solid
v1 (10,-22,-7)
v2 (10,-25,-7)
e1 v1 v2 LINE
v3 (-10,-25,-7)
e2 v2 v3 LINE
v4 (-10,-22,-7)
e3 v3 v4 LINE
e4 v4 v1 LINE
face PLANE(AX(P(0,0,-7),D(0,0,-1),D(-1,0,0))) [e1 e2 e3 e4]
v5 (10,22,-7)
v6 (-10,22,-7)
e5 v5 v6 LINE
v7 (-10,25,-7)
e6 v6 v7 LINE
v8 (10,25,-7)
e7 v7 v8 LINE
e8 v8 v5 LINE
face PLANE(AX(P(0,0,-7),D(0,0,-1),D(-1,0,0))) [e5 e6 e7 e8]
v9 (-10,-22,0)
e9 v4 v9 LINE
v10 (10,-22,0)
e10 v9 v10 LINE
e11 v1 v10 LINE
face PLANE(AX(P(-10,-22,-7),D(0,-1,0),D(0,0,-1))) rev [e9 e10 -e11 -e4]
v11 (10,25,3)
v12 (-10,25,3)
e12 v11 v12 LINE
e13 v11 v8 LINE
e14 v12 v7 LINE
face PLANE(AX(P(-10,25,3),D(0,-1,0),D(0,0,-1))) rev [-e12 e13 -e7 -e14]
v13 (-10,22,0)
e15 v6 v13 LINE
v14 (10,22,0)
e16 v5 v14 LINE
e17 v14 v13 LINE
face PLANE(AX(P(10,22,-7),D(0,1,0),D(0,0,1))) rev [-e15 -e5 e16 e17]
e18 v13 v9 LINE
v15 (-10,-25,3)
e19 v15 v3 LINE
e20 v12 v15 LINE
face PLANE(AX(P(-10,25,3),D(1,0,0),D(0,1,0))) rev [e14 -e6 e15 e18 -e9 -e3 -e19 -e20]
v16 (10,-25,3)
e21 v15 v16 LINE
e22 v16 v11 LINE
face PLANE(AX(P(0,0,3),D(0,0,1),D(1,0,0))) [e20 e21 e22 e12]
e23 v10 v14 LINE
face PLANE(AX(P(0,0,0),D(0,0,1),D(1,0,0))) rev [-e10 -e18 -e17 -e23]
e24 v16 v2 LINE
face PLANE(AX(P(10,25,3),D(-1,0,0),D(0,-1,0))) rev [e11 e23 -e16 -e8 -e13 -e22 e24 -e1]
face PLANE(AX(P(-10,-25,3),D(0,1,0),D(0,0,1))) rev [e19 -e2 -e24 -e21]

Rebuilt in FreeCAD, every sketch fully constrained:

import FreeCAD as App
import Part
import Sketcher
from FreeCAD import Vector
Q = App.Units.Quantity


def add_polygon(sketch, points):
    """Adds a closed chain of lines whose ends are joined by coincident constraints."""
    first, n = sketch.GeometryCount, len(points)
    for a, b in zip(points, points[1:] + points[:1]):
        sketch.addGeometry(Part.LineSegment(App.Vector(*a, 0), App.Vector(*b, 0)), False)
    for i in range(n):
        sketch.addConstraint(Sketcher.Constraint("Coincident", first + i, 2, first + (i + 1) % n, 1))

doc = App.newDocument("Part")
body = doc.addObject("PartDesign::Body", "Body")

sketch1 = doc.addObject("Sketcher::SketchObject", "Sketch")
body.addObject(sketch1)
sketch1.AttachmentSupport = (doc.XY_Plane, [""])
sketch1.MapMode = "FlatFace"
add_polygon(sketch1, [(-10, 25), (-10, -25), (10, -25), (10, 25)])
sketch1.addConstraint([
    Sketcher.Constraint("Vertical", 0),
    Sketcher.Constraint("Horizontal", 1),
    Sketcher.Constraint("Vertical", 2),
    Sketcher.Constraint("Horizontal", 3),
    Sketcher.Constraint("Symmetric", 0, 2, 2, 2, -1, 1),
    Sketcher.Constraint("DistanceX", 1, 1, 1, 2, Q("20 mm")),
    Sketcher.Constraint("DistanceY", 0, 2, 0, 1, Q("50 mm")),
])
pad1 = doc.addObject("PartDesign::Pad", "Pad")
body.addObject(pad1)
pad1.Profile = sketch1
pad1.Length = 3

sketch2 = doc.addObject("Sketcher::SketchObject", "Sketch001")
body.addObject(sketch2)
sketch2.AttachmentSupport = (doc.XY_Plane, [""])
sketch2.MapMode = "FlatFace"
add_polygon(sketch2, [(10, 25), (10, 22), (-10, 22), (-10, 25)])
sketch2.addConstraint([
    Sketcher.Constraint("Vertical", 0),
    Sketcher.Constraint("Horizontal", 1),
    Sketcher.Constraint("Vertical", 2),
    Sketcher.Constraint("Horizontal", 3),
    Sketcher.Constraint("DistanceX", 1, 2, 1, 1, Q("20 mm")),
    Sketcher.Constraint("DistanceY", 0, 2, 0, 1, Q("3 mm")),
    Sketcher.Constraint("DistanceX", -1, 1, 0, 2, Q("10 mm")),
    Sketcher.Constraint("DistanceY", -1, 1, 0, 2, Q("22 mm")),
])
pad2 = doc.addObject("PartDesign::Pad", "Pad001")
body.addObject(pad2)
pad2.Profile = sketch2
pad2.Length = 7
pad2.Reversed = True

sketch3 = doc.addObject("Sketcher::SketchObject", "Sketch002")
body.addObject(sketch3)
sketch3.AttachmentSupport = (doc.XY_Plane, [""])
sketch3.MapMode = "FlatFace"
add_polygon(sketch3, [(10, -22), (10, -25), (-10, -25), (-10, -22)])
sketch3.addConstraint([
    Sketcher.Constraint("Vertical", 0),
    Sketcher.Constraint("Horizontal", 1),
    Sketcher.Constraint("Vertical", 2),
    Sketcher.Constraint("Horizontal", 3),
    Sketcher.Constraint("DistanceX", 1, 2, 1, 1, Q("20 mm")),
    Sketcher.Constraint("DistanceY", 0, 2, 0, 1, Q("3 mm")),
    Sketcher.Constraint("DistanceX", -1, 1, 0, 2, Q("10 mm")),
    Sketcher.Constraint("DistanceY", 0, 2, -1, 1, Q("25 mm")),
])
pad3 = doc.addObject("PartDesign::Pad", "Pad002")
body.addObject(pad3)
pad3.Profile = sketch3
pad3.Length = 7
pad3.Reversed = True

doc.recompute()
